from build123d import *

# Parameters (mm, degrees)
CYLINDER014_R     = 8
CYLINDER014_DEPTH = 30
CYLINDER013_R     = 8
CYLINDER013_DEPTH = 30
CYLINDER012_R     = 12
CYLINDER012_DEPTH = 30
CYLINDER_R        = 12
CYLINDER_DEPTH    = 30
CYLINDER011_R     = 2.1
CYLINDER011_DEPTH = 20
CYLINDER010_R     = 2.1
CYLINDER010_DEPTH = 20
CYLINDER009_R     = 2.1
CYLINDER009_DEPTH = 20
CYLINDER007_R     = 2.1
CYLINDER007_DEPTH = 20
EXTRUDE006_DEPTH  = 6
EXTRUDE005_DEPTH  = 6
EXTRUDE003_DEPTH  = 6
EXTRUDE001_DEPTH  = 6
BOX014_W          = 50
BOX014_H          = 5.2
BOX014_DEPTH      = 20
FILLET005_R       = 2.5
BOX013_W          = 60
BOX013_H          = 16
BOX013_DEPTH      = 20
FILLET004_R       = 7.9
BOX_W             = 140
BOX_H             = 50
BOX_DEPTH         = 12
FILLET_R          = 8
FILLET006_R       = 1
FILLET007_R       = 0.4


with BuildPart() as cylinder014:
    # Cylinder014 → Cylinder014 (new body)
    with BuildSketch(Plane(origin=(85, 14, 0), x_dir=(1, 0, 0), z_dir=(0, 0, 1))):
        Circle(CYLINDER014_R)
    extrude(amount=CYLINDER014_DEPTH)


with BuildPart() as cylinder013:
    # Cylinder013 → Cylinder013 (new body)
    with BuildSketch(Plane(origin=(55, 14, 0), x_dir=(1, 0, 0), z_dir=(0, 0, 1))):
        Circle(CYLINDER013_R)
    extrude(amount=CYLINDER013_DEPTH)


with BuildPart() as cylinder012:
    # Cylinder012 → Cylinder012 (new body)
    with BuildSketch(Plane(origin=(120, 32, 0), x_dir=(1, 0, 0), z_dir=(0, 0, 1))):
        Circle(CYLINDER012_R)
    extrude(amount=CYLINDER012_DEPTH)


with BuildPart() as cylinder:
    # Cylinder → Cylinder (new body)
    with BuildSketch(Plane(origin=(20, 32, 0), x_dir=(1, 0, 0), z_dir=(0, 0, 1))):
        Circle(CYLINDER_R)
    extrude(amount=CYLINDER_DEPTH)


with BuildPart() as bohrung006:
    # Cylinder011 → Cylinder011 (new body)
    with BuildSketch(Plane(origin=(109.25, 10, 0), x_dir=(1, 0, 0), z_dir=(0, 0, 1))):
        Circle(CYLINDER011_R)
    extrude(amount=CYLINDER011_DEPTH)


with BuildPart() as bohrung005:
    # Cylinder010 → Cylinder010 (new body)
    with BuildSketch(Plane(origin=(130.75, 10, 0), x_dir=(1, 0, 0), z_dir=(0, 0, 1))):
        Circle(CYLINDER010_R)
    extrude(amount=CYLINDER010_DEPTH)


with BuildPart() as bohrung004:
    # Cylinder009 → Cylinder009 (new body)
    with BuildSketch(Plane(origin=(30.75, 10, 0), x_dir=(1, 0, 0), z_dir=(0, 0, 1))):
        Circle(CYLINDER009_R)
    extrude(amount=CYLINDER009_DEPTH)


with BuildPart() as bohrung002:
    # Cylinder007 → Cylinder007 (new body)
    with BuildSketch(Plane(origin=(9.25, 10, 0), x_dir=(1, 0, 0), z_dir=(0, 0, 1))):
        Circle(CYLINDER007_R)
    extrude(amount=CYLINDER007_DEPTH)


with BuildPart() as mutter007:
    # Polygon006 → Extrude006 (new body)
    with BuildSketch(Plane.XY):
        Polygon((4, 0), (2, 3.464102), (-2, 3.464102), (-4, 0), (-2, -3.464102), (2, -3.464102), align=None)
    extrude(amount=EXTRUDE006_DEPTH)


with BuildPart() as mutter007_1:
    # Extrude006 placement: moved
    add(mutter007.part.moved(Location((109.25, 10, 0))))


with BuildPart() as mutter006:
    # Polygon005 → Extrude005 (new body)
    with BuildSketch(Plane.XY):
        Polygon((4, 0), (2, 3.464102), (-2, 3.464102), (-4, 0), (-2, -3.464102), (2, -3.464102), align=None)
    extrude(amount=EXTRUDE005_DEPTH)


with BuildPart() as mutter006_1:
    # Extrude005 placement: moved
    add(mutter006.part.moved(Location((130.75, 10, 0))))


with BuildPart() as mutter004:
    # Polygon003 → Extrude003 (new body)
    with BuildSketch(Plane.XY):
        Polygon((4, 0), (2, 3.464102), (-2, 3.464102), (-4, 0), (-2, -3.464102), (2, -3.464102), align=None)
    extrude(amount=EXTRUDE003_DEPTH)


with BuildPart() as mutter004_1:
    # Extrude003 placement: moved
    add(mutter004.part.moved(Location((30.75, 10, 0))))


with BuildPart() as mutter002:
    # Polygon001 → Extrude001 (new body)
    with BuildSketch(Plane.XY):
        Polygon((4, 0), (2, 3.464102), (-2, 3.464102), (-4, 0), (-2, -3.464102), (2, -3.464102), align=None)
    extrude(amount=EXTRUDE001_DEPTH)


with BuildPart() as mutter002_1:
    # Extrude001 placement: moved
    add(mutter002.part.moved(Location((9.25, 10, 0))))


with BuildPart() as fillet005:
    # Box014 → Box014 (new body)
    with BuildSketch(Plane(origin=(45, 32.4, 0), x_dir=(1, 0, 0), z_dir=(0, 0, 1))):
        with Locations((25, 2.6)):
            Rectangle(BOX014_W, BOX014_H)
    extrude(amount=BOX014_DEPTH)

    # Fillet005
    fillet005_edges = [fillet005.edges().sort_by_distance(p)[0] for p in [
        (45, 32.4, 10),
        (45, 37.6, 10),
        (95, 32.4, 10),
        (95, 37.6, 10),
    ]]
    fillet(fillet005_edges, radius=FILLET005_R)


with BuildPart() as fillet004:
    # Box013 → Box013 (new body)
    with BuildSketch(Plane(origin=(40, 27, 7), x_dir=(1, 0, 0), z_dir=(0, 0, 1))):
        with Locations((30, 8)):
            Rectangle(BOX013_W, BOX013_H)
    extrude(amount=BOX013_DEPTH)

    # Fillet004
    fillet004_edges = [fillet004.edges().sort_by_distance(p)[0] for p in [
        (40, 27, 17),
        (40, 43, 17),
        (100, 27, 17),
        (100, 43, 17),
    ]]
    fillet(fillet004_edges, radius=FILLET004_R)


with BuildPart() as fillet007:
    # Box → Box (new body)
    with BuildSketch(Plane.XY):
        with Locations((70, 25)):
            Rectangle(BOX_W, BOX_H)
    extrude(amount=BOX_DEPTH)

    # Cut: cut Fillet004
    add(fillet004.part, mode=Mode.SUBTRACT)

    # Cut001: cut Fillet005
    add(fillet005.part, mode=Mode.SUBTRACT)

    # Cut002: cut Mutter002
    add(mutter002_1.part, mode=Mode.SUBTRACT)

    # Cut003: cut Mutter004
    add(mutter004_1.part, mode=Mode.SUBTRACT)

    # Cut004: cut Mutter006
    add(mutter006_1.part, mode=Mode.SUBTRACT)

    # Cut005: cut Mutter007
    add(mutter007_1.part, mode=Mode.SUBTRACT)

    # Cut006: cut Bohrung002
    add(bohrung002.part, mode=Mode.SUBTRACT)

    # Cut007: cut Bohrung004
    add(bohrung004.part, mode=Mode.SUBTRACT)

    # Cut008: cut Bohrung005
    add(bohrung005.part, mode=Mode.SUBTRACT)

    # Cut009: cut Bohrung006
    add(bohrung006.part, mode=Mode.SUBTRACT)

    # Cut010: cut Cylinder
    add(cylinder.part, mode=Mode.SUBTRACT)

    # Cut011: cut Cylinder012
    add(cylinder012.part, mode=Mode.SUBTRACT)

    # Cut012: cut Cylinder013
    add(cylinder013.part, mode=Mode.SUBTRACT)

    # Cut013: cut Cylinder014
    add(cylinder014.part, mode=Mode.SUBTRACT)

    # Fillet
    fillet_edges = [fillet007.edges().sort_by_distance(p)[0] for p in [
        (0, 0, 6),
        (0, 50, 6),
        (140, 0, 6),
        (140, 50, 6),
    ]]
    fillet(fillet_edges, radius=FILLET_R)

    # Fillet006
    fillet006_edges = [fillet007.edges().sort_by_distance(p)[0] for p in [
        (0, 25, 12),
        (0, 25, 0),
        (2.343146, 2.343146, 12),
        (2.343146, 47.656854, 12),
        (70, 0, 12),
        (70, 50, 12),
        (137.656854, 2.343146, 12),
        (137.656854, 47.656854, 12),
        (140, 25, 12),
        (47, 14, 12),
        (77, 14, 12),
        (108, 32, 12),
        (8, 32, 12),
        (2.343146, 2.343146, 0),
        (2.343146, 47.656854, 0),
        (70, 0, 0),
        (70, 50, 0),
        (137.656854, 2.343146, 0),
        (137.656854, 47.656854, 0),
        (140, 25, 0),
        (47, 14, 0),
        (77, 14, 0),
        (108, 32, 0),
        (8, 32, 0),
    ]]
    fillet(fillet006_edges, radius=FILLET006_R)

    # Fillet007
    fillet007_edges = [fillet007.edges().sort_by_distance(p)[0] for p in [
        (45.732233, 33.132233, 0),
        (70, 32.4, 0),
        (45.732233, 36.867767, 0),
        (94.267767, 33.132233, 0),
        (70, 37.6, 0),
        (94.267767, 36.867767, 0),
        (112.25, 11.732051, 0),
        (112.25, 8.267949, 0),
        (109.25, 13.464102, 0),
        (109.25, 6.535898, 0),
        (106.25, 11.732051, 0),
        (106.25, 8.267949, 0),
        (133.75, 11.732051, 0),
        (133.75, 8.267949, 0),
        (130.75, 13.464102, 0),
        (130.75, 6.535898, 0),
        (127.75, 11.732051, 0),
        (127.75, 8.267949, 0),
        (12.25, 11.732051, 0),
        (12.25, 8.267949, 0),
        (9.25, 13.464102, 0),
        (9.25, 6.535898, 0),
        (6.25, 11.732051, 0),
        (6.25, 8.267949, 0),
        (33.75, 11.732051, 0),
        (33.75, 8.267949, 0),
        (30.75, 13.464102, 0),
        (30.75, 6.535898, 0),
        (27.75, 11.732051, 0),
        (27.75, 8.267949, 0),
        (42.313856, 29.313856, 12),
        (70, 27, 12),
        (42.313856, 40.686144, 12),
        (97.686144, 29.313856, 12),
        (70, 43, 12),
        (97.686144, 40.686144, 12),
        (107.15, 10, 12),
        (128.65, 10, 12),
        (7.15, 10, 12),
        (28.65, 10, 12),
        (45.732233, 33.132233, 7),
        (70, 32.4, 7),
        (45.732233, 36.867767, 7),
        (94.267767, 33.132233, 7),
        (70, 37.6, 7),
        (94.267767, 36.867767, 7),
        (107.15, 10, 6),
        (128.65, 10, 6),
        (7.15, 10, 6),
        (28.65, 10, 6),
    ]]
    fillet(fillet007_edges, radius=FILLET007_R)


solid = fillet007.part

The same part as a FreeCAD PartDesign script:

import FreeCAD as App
import Part
import Sketcher

V = App.Vector
Q = App.Units.Quantity


def edges_at(feature, points):
    """Names of the edges that pass closest to the given points."""
    edges = feature.Shape.Edges
    near = lambda p: min(range(len(edges)), key=lambda i: edges[i].distToShape(Part.Vertex(*p))[0])
    return sorted({f"Edge{near(p) + 1}" for p in points})


def add_polygon(sketch, points):
    """Adds a closed chain of lines whose ends are joined by coincident constraints."""
    first, n = sketch.GeometryCount, len(points)
    for a, b in zip(points, points[1:] + points[:1]):
        sketch.addGeometry(Part.LineSegment(App.Vector(*a, 0), App.Vector(*b, 0)), False)
    for i in range(n):
        sketch.addConstraint(Sketcher.Constraint("Coincident", first + i, 2, first + (i + 1) % n, 1))

doc = App.newDocument("Part")
body = doc.addObject("PartDesign::Body", "Body")

# Sketch on XY plane
sketch1 = body.newObject("Sketcher::SketchObject", "Sketch")
sketch1.AttachmentSupport = (doc.getObject("XY_Plane"), [""])
sketch1.MapMode = "FlatFace"
sketch1.addGeometry(Part.Circle(V(85, 14, 0), V(0, 0, 1), 8), False)
sketch1.addConstraint([
    Sketcher.Constraint("Diameter", 0, Q("16 mm")),
    Sketcher.Constraint("DistanceX", -1, 1, 0, 3, Q("85 mm")),
    Sketcher.Constraint("DistanceY", -1, 1, 0, 3, Q("14 mm")),
])
pad1 = body.newObject("PartDesign::Pad", "Pad")
pad1.Profile = sketch1
pad1.Length = 30
body2 = doc.addObject("PartDesign::Body", "Body001")

# Sketch on XY plane
sketch2 = body2.newObject("Sketcher::SketchObject", "Sketch001")
sketch2.AttachmentSupport = (doc.getObject("XY_Plane001"), [""])
sketch2.MapMode = "FlatFace"
sketch2.addGeometry(Part.Circle(V(55, 14, 0), V(0, 0, 1), 8), False)
sketch2.addConstraint([
    Sketcher.Constraint("Diameter", 0, Q("16 mm")),
    Sketcher.Constraint("DistanceX", -1, 1, 0, 3, Q("55 mm")),
    Sketcher.Constraint("DistanceY", -1, 1, 0, 3, Q("14 mm")),
])
pad2 = body2.newObject("PartDesign::Pad", "Pad001")
pad2.Profile = sketch2
pad2.Length = 30
body3 = doc.addObject("PartDesign::Body", "Body002")

# Sketch on XY plane
sketch3 = body3.newObject("Sketcher::SketchObject", "Sketch002")
sketch3.AttachmentSupport = (doc.getObject("XY_Plane002"), [""])
sketch3.MapMode = "FlatFace"
sketch3.addGeometry(Part.Circle(V(120, 32, 0), V(0, 0, 1), 12), False)
sketch3.addConstraint([
    Sketcher.Constraint("Diameter", 0, Q("24 mm")),
    Sketcher.Constraint("DistanceX", -1, 1, 0, 3, Q("120 mm")),
    Sketcher.Constraint("DistanceY", -1, 1, 0, 3, Q("32 mm")),
])
pad3 = body3.newObject("PartDesign::Pad", "Pad002")
pad3.Profile = sketch3
pad3.Length = 30
body4 = doc.addObject("PartDesign::Body", "Body003")

# Sketch on XY plane
sketch4 = body4.newObject("Sketcher::SketchObject", "Sketch003")
sketch4.AttachmentSupport = (doc.getObject("XY_Plane003"), [""])
sketch4.MapMode = "FlatFace"
sketch4.addGeometry(Part.Circle(V(20, 32, 0), V(0, 0, 1), 12), False)
sketch4.addConstraint([
    Sketcher.Constraint("Diameter", 0, Q("24 mm")),
    Sketcher.Constraint("DistanceX", -1, 1, 0, 3, Q("20 mm")),
    Sketcher.Constraint("DistanceY", -1, 1, 0, 3, Q("32 mm")),
])
pad4 = body4.newObject("PartDesign::Pad", "Pad003")
pad4.Profile = sketch4
pad4.Length = 30
body5 = doc.addObject("PartDesign::Body", "Body004")

# Sketch on XY plane
sketch5 = body5.newObject("Sketcher::SketchObject", "Sketch004")
sketch5.AttachmentSupport = (doc.getObject("XY_Plane004"), [""])
sketch5.MapMode = "FlatFace"
sketch5.addGeometry(Part.Circle(V(109.2, 10, 0), V(0, 0, 1), 2.1), False)
sketch5.addConstraint([
    Sketcher.Constraint("Diameter", 0, Q("4.2 mm")),
    Sketcher.Constraint("DistanceY", -1, 1, 0, 3, Q("10 mm")),
    Sketcher.Constraint("DistanceX", -1, 1, 0, 3, Q("109.25 mm")),
])
pad5 = body5.newObject("PartDesign::Pad", "Pad004")
pad5.Profile = sketch5
pad5.Length = 20
body6 = doc.addObject("PartDesign::Body", "Body005")

# Sketch on XY plane
sketch6 = body6.newObject("Sketcher::SketchObject", "Sketch005")
sketch6.AttachmentSupport = (doc.getObject("XY_Plane005"), [""])
sketch6.MapMode = "FlatFace"
sketch6.addGeometry(Part.Circle(V(130.8, 10, 0), V(0, 0, 1), 2.1), False)
sketch6.addConstraint([
    Sketcher.Constraint("Diameter", 0, Q("4.2 mm")),
    Sketcher.Constraint("DistanceY", -1, 1, 0, 3, Q("10 mm")),
    Sketcher.Constraint("DistanceX", -1, 1, 0, 3, Q("130.75 mm")),
])
pad6 = body6.newObject("PartDesign::Pad", "Pad005")
pad6.Profile = sketch6
pad6.Length = 20
body7 = doc.addObject("PartDesign::Body", "Body006")

# Sketch on XY plane
sketch7 = body7.newObject("Sketcher::SketchObject", "Sketch006")
sketch7.AttachmentSupport = (doc.getObject("XY_Plane006"), [""])
sketch7.MapMode = "FlatFace"
sketch7.addGeometry(Part.Circle(V(30.8, 10, 0), V(0, 0, 1), 2.1), False)
sketch7.addConstraint([
    Sketcher.Constraint("Diameter", 0, Q("4.2 mm")),
    Sketcher.Constraint("DistanceY", -1, 1, 0, 3, Q("10 mm")),
    Sketcher.Constraint("DistanceX", -1, 1, 0, 3, Q("30.75 mm")),
])
pad7 = body7.newObject("PartDesign::Pad", "Pad006")
pad7.Profile = sketch7
pad7.Length = 20
body8 = doc.addObject("PartDesign::Body", "Body007")

# Sketch on XY plane
sketch8 = body8.newObject("Sketcher::SketchObject", "Sketch007")
sketch8.AttachmentSupport = (doc.getObject("XY_Plane007"), [""])
sketch8.MapMode = "FlatFace"
sketch8.addGeometry(Part.Circle(V(9.2, 10, 0), V(0, 0, 1), 2.1), False)
sketch8.addConstraint([
    Sketcher.Constraint("Diameter", 0, Q("4.2 mm")),
    Sketcher.Constraint("DistanceY", -1, 1, 0, 3, Q("10 mm")),
    Sketcher.Constraint("DistanceX", -1, 1, 0, 3, Q("9.25 mm")),
])
pad8 = body8.newObject("PartDesign::Pad", "Pad007")
pad8.Profile = sketch8
pad8.Length = 20
body9 = doc.addObject("PartDesign::Body", "Body008")

# Sketch on XY plane
sketch9 = body9.newObject("Sketcher::SketchObject", "Sketch008")
sketch9.AttachmentSupport = (doc.getObject("XY_Plane008"), [""])
sketch9.MapMode = "FlatFace"
add_polygon(sketch9, [(4, 0), (2, 3.5), (-2, 3.5), (-4, 0), (-2, -3.5), (2, -3.5)])  # lines 0-5
sketch9.addConstraint([
    Sketcher.Constraint("Horizontal", 1),
    Sketcher.Constraint("Horizontal", 4),
    Sketcher.Constraint("Symmetric", 0, 2, 3, 2, -1, 1),
    Sketcher.Constraint("Symmetric", 2, 2, 5, 2, -1, 1),
    Sketcher.Constraint("PointOnObject", 2, 2, -1),
    Sketcher.Constraint("Parallel", 2, 5),
    Sketcher.Constraint("Vertical", 1, 2, 3, 2),
    Sketcher.Constraint("DistanceX", 1, 2, 1, 1, Q("4 mm")),
    Sketcher.Constraint("Angle", 0, Q("119.999997 deg")),
    Sketcher.Constraint("Distance", 0, Q("4 mm")),
])
pad9 = body9.newObject("PartDesign::Pad", "Pad008")
pad9.Profile = sketch9
pad9.Length = 6
body10 = doc.addObject("PartDesign::Body", "Body009")
doc.recompute()

body9.Placement = App.Placement(V(109.25, 10, 0), App.Rotation(V(0, 0, 1), 0))
boolean = body10.newObject("PartDesign::Boolean", "Boolean")
boolean.Type = "Fuse"
boolean.addObjects([body9])
body11 = doc.addObject("PartDesign::Body", "Body010")

# Sketch on XY plane
sketch10 = body11.newObject("Sketcher::SketchObject", "Sketch009")
sketch10.AttachmentSupport = (doc.getObject("XY_Plane010"), [""])
sketch10.MapMode = "FlatFace"
add_polygon(sketch10, [(4, 0), (2, 3.5), (-2, 3.5), (-4, 0), (-2, -3.5), (2, -3.5)])  # lines 0-5
sketch10.addConstraint([
    Sketcher.Constraint("Horizontal", 1),
    Sketcher.Constraint("Horizontal", 4),
    Sketcher.Constraint("Symmetric", 0, 2, 3, 2, -1, 1),
    Sketcher.Constraint("Symmetric", 2, 2, 5, 2, -1, 1),
    Sketcher.Constraint("PointOnObject", 2, 2, -1),
    Sketcher.Constraint("Parallel", 2, 5),
    Sketcher.Constraint("Vertical", 1, 2, 3, 2),
    Sketcher.Constraint("DistanceX", 1, 2, 1, 1, Q("4 mm")),
    Sketcher.Constraint("Angle", 0, Q("119.999997 deg")),
    Sketcher.Constraint("Distance", 0, Q("4 mm")),
])
pad10 = body11.newObject("PartDesign::Pad", "Pad009")
pad10.Profile = sketch10
pad10.Length = 6
body12 = doc.addObject("PartDesign::Body", "Body011")
doc.recompute()

body11.Placement = App.Placement(V(130.75, 10, 0), App.Rotation(V(0, 0, 1), 0))
boolean2 = body12.newObject("PartDesign::Boolean", "Boolean001")
boolean2.Type = "Fuse"
boolean2.addObjects([body11])
body13 = doc.addObject("PartDesign::Body", "Body012")

# Sketch on XY plane
sketch11 = body13.newObject("Sketcher::SketchObject", "Sketch010")
sketch11.AttachmentSupport = (doc.getObject("XY_Plane012"), [""])
sketch11.MapMode = "FlatFace"
add_polygon(sketch11, [(4, 0), (2, 3.5), (-2, 3.5), (-4, 0), (-2, -3.5), (2, -3.5)])  # lines 0-5
sketch11.addConstraint([
    Sketcher.Constraint("Horizontal", 1),
    Sketcher.Constraint("Horizontal", 4),
    Sketcher.Constraint("Symmetric", 0, 2, 3, 2, -1, 1),
    Sketcher.Constraint("Symmetric", 2, 2, 5, 2, -1, 1),
    Sketcher.Constraint("PointOnObject", 2, 2, -1),
    Sketcher.Constraint("Parallel", 2, 5),
    Sketcher.Constraint("Vertical", 1, 2, 3, 2),
    Sketcher.Constraint("DistanceX", 1, 2, 1, 1, Q("4 mm")),
    Sketcher.Constraint("Angle", 0, Q("119.999997 deg")),
    Sketcher.Constraint("Distance", 0, Q("4 mm")),
])
pad11 = body13.newObject("PartDesign::Pad", "Pad010")
pad11.Profile = sketch11
pad11.Length = 6
body14 = doc.addObject("PartDesign::Body", "Body013")
doc.recompute()

body13.Placement = App.Placement(V(30.75, 10, 0), App.Rotation(V(0, 0, 1), 0))
boolean3 = body14.newObject("PartDesign::Boolean", "Boolean002")
boolean3.Type = "Fuse"
boolean3.addObjects([body13])
body15 = doc.addObject("PartDesign::Body", "Body014")

# Sketch on XY plane
sketch12 = body15.newObject("Sketcher::SketchObject", "Sketch011")
sketch12.AttachmentSupport = (doc.getObject("XY_Plane014"), [""])
sketch12.MapMode = "FlatFace"
add_polygon(sketch12, [(4, 0), (2, 3.5), (-2, 3.5), (-4, 0), (-2, -3.5), (2, -3.5)])  # lines 0-5
sketch12.addConstraint([
    Sketcher.Constraint("Horizontal", 1),
    Sketcher.Constraint("Horizontal", 4),
    Sketcher.Constraint("Symmetric", 0, 2, 3, 2, -1, 1),
    Sketcher.Constraint("Symmetric", 2, 2, 5, 2, -1, 1),
    Sketcher.Constraint("PointOnObject", 2, 2, -1),
    Sketcher.Constraint("Parallel", 2, 5),
    Sketcher.Constraint("Vertical", 1, 2, 3, 2),
    Sketcher.Constraint("DistanceX", 1, 2, 1, 1, Q("4 mm")),
    Sketcher.Constraint("Angle", 0, Q("119.999997 deg")),
    Sketcher.Constraint("Distance", 0, Q("4 mm")),
])
pad12 = body15.newObject("PartDesign::Pad", "Pad011")
pad12.Profile = sketch12
pad12.Length = 6
body16 = doc.addObject("PartDesign::Body", "Body015")
doc.recompute()

body15.Placement = App.Placement(V(9.25, 10, 0), App.Rotation(V(0, 0, 1), 0))
boolean4 = body16.newObject("PartDesign::Boolean", "Boolean003")
boolean4.Type = "Fuse"
boolean4.addObjects([body15])
body17 = doc.addObject("PartDesign::Body", "Body016")

# Sketch on XY plane
sketch13 = body17.newObject("Sketcher::SketchObject", "Sketch012")
sketch13.AttachmentSupport = (doc.getObject("XY_Plane016"), [""])
sketch13.MapMode = "FlatFace"
add_polygon(sketch13, [(45, 38), (45, 32), (95, 32), (95, 38)])  # lines 0-3
sketch13.addConstraint([
    Sketcher.Constraint("Vertical", 0),
    Sketcher.Constraint("Horizontal", 1),
    Sketcher.Constraint("Vertical", 2),
    Sketcher.Constraint("Horizontal", 3),
    Sketcher.Constraint("DistanceX", 1, 1, 1, 2, Q("50 mm")),
    Sketcher.Constraint("DistanceY", 0, 2, 0, 1, Q("5.2 mm")),
    Sketcher.Constraint("DistanceX", -1, 1, 0, 2, Q("45 mm")),
    Sketcher.Constraint("DistanceY", -1, 1, 0, 2, Q("32.4 mm")),
])
pad13 = body17.newObject("PartDesign::Pad", "Pad012")
pad13.Profile = sketch13
pad13.Length = 20
doc.recompute()

fillet = body17.newObject("PartDesign::Fillet", "Fillet")
fillet.Base = (pad13, edges_at(pad13, [
    (45, 32.4, 10),
    (45, 37.6, 10),
    (95, 32.4, 10),
    (95, 37.6, 10),
]))
fillet.Radius = 2.5
body18 = doc.addObject("PartDesign::Body", "Body017")

# Sketch on XY plane
sketch14 = body18.newObject("Sketcher::SketchObject", "Sketch013")
sketch14.AttachmentSupport = (doc.getObject("XY_Plane017"), [""])
sketch14.MapMode = "FlatFace"
sketch14.AttachmentOffset = App.Placement(V(0, 0, 7), App.Rotation())
add_polygon(sketch14, [(40, 43), (40, 27), (100, 27), (100, 43)])  # lines 0-3
sketch14.addConstraint([
    Sketcher.Constraint("Vertical", 0),
    Sketcher.Constraint("Horizontal", 1),
    Sketcher.Constraint("Vertical", 2),
    Sketcher.Constraint("Horizontal", 3),
    Sketcher.Constraint("DistanceX", 1, 1, 1, 2, Q("60 mm")),
    Sketcher.Constraint("DistanceY", 0, 2, 0, 1, Q("16 mm")),
    Sketcher.Constraint("DistanceX", -1, 1, 0, 2, Q("40 mm")),
    Sketcher.Constraint("DistanceY", -1, 1, 0, 2, Q("27 mm")),
])
pad14 = body18.newObject("PartDesign::Pad", "Pad013")
pad14.Profile = sketch14
pad14.Length = 20
doc.recompute()

fillet2 = body18.newObject("PartDesign::Fillet", "Fillet001")
fillet2.Base = (pad14, edges_at(pad14, [
    (40, 27, 17),
    (40, 43, 17),
    (100, 27, 17),
    (100, 43, 17),
]))
fillet2.Radius = 7.9
body19 = doc.addObject("PartDesign::Body", "Body018")

# Sketch on XY plane
sketch15 = body19.newObject("Sketcher::SketchObject", "Sketch014")
sketch15.AttachmentSupport = (doc.getObject("XY_Plane018"), [""])
sketch15.MapMode = "FlatFace"
add_polygon(sketch15, [(0, 50), (0, 0), (140, 0), (140, 50)])  # lines 0-3
sketch15.addConstraint([
    Sketcher.Constraint("Vertical", 0),
    Sketcher.Constraint("Horizontal", 1),
    Sketcher.Constraint("Vertical", 2),
    Sketcher.Constraint("Horizontal", 3),
    Sketcher.Constraint("Coincident", 0, 2, -1, 1),
    Sketcher.Constraint("DistanceX", 1, 1, 1, 2, Q("140 mm")),
    Sketcher.Constraint("DistanceY", 0, 2, 0, 1, Q("50 mm")),
])
pad15 = body19.newObject("PartDesign::Pad", "Pad014")
pad15.Profile = sketch15
pad15.Length = 12
doc.recompute()

boolean5 = body19.newObject("PartDesign::Boolean", "Boolean004")
boolean5.Type = "Cut"
boolean5.addObjects([body18])
doc.recompute()

boolean6 = body19.newObject("PartDesign::Boolean", "Boolean005")
boolean6.Type = "Cut"
boolean6.addObjects([body17])
doc.recompute()

boolean7 = body19.newObject("PartDesign::Boolean", "Boolean006")
boolean7.Type = "Cut"
boolean7.addObjects([body16])
doc.recompute()

boolean8 = body19.newObject("PartDesign::Boolean", "Boolean007")
boolean8.Type = "Cut"
boolean8.addObjects([body14])
doc.recompute()

boolean9 = body19.newObject("PartDesign::Boolean", "Boolean008")
boolean9.Type = "Cut"
boolean9.addObjects([body12])
doc.recompute()

boolean10 = body19.newObject("PartDesign::Boolean", "Boolean009")
boolean10.Type = "Cut"
boolean10.addObjects([body10])
doc.recompute()

boolean11 = body19.newObject("PartDesign::Boolean", "Boolean010")
boolean11.Type = "Cut"
boolean11.addObjects([body8])
doc.recompute()

boolean12 = body19.newObject("PartDesign::Boolean", "Boolean011")
boolean12.Type = "Cut"
boolean12.addObjects([body7])
doc.recompute()

boolean13 = body19.newObject("PartDesign::Boolean", "Boolean012")
boolean13.Type = "Cut"
boolean13.addObjects([body6])
doc.recompute()

boolean14 = body19.newObject("PartDesign::Boolean", "Boolean013")
boolean14.Type = "Cut"
boolean14.addObjects([body5])
doc.recompute()

boolean15 = body19.newObject("PartDesign::Boolean", "Boolean014")
boolean15.Type = "Cut"
boolean15.addObjects([body4])
doc.recompute()

boolean16 = body19.newObject("PartDesign::Boolean", "Boolean015")
boolean16.Type = "Cut"
boolean16.addObjects([body3])
doc.recompute()

boolean17 = body19.newObject("PartDesign::Boolean", "Boolean016")
boolean17.Type = "Cut"
boolean17.addObjects([body2])
doc.recompute()

boolean18 = body19.newObject("PartDesign::Boolean", "Boolean017")
boolean18.Type = "Cut"
boolean18.addObjects([body])
doc.recompute()

fillet3 = body19.newObject("PartDesign::Fillet", "Fillet002")
fillet3.Base = (boolean18, edges_at(boolean18, [
    (0, 0, 6),
    (0, 50, 6),
    (140, 0, 6),
    (140, 50, 6),
]))
fillet3.Radius = 8
doc.recompute()

fillet4 = body19.newObject("PartDesign::Fillet", "Fillet003")
fillet4.Base = (fillet3, edges_at(fillet3, [
    (0, 25, 12),
    (0, 25, 0),
    (2.343, 2.343, 12),
    (2.343, 47.657, 12),
    (70, 0, 12),
    (70, 50, 12),
    (137.657, 2.343, 12),
    (137.657, 47.657, 12),
    (140, 25, 12),
    (47, 14, 12),
    (77, 14, 12),
    (108, 32, 12),
    (8, 32, 12),
    (2.343, 2.343, 0),
    (2.343, 47.657, 0),
    (70, 0, 0),
    (70, 50, 0),
    (137.657, 2.343, 0),
    (137.657, 47.657, 0),
    (140, 25, 0),
    (47, 14, 0),
    (77, 14, 0),
    (108, 32, 0),
    (8, 32, 0),
]))
fillet4.Radius = 1
doc.recompute()

fillet5 = body19.newObject("PartDesign::Fillet", "Fillet004")
fillet5.Base = (fillet4, edges_at(fillet4, [
    (45.732, 33.132, 0),
    (70, 32.4, 0),
    (45.732, 36.868, 0),
    (94.268, 33.132, 0),
    (70, 37.6, 0),
    (94.268, 36.868, 0),
    (112.25, 11.732, 0),
    (112.25, 8.268, 0),
    (109.25, 13.464, 0),
    (109.25, 6.536, 0),
    (106.25, 11.732, 0),
    (106.25, 8.268, 0),
    (133.75, 11.732, 0),
    (133.75, 8.268, 0),
    (130.75, 13.464, 0),
    (130.75, 6.536, 0),
    (127.75, 11.732, 0),
    (127.75, 8.268, 0),
    (12.25, 11.732, 0),
    (12.25, 8.268, 0),
    (9.25, 13.464, 0),
    (9.25, 6.536, 0),
    (6.25, 11.732, 0),
    (6.25, 8.268, 0),
    (33.75, 11.732, 0),
    (33.75, 8.268, 0),
    (30.75, 13.464, 0),
    (30.75, 6.536, 0),
    (27.75, 11.732, 0),
    (27.75, 8.268, 0),
    (42.314, 29.314, 12),
    (70, 27, 12),
    (42.314, 40.686, 12),
    (97.686, 29.314, 12),
    (70, 43, 12),
    (97.686, 40.686, 12),
    (107.15, 10, 12),
    (128.65, 10, 12),
    (7.15, 10, 12),
    (28.65, 10, 12),
    (45.732, 33.132, 7),
    (70, 32.4, 7),
    (45.732, 36.868, 7),
    (94.268, 33.132, 7),
    (70, 37.6, 7),
    (94.268, 36.868, 7),
    (107.15, 10, 6),
    (128.65, 10, 6),
    (7.15, 10, 6),
    (28.65, 10, 6),
]))
fillet5.Radius = 0.4

doc.recompute()
